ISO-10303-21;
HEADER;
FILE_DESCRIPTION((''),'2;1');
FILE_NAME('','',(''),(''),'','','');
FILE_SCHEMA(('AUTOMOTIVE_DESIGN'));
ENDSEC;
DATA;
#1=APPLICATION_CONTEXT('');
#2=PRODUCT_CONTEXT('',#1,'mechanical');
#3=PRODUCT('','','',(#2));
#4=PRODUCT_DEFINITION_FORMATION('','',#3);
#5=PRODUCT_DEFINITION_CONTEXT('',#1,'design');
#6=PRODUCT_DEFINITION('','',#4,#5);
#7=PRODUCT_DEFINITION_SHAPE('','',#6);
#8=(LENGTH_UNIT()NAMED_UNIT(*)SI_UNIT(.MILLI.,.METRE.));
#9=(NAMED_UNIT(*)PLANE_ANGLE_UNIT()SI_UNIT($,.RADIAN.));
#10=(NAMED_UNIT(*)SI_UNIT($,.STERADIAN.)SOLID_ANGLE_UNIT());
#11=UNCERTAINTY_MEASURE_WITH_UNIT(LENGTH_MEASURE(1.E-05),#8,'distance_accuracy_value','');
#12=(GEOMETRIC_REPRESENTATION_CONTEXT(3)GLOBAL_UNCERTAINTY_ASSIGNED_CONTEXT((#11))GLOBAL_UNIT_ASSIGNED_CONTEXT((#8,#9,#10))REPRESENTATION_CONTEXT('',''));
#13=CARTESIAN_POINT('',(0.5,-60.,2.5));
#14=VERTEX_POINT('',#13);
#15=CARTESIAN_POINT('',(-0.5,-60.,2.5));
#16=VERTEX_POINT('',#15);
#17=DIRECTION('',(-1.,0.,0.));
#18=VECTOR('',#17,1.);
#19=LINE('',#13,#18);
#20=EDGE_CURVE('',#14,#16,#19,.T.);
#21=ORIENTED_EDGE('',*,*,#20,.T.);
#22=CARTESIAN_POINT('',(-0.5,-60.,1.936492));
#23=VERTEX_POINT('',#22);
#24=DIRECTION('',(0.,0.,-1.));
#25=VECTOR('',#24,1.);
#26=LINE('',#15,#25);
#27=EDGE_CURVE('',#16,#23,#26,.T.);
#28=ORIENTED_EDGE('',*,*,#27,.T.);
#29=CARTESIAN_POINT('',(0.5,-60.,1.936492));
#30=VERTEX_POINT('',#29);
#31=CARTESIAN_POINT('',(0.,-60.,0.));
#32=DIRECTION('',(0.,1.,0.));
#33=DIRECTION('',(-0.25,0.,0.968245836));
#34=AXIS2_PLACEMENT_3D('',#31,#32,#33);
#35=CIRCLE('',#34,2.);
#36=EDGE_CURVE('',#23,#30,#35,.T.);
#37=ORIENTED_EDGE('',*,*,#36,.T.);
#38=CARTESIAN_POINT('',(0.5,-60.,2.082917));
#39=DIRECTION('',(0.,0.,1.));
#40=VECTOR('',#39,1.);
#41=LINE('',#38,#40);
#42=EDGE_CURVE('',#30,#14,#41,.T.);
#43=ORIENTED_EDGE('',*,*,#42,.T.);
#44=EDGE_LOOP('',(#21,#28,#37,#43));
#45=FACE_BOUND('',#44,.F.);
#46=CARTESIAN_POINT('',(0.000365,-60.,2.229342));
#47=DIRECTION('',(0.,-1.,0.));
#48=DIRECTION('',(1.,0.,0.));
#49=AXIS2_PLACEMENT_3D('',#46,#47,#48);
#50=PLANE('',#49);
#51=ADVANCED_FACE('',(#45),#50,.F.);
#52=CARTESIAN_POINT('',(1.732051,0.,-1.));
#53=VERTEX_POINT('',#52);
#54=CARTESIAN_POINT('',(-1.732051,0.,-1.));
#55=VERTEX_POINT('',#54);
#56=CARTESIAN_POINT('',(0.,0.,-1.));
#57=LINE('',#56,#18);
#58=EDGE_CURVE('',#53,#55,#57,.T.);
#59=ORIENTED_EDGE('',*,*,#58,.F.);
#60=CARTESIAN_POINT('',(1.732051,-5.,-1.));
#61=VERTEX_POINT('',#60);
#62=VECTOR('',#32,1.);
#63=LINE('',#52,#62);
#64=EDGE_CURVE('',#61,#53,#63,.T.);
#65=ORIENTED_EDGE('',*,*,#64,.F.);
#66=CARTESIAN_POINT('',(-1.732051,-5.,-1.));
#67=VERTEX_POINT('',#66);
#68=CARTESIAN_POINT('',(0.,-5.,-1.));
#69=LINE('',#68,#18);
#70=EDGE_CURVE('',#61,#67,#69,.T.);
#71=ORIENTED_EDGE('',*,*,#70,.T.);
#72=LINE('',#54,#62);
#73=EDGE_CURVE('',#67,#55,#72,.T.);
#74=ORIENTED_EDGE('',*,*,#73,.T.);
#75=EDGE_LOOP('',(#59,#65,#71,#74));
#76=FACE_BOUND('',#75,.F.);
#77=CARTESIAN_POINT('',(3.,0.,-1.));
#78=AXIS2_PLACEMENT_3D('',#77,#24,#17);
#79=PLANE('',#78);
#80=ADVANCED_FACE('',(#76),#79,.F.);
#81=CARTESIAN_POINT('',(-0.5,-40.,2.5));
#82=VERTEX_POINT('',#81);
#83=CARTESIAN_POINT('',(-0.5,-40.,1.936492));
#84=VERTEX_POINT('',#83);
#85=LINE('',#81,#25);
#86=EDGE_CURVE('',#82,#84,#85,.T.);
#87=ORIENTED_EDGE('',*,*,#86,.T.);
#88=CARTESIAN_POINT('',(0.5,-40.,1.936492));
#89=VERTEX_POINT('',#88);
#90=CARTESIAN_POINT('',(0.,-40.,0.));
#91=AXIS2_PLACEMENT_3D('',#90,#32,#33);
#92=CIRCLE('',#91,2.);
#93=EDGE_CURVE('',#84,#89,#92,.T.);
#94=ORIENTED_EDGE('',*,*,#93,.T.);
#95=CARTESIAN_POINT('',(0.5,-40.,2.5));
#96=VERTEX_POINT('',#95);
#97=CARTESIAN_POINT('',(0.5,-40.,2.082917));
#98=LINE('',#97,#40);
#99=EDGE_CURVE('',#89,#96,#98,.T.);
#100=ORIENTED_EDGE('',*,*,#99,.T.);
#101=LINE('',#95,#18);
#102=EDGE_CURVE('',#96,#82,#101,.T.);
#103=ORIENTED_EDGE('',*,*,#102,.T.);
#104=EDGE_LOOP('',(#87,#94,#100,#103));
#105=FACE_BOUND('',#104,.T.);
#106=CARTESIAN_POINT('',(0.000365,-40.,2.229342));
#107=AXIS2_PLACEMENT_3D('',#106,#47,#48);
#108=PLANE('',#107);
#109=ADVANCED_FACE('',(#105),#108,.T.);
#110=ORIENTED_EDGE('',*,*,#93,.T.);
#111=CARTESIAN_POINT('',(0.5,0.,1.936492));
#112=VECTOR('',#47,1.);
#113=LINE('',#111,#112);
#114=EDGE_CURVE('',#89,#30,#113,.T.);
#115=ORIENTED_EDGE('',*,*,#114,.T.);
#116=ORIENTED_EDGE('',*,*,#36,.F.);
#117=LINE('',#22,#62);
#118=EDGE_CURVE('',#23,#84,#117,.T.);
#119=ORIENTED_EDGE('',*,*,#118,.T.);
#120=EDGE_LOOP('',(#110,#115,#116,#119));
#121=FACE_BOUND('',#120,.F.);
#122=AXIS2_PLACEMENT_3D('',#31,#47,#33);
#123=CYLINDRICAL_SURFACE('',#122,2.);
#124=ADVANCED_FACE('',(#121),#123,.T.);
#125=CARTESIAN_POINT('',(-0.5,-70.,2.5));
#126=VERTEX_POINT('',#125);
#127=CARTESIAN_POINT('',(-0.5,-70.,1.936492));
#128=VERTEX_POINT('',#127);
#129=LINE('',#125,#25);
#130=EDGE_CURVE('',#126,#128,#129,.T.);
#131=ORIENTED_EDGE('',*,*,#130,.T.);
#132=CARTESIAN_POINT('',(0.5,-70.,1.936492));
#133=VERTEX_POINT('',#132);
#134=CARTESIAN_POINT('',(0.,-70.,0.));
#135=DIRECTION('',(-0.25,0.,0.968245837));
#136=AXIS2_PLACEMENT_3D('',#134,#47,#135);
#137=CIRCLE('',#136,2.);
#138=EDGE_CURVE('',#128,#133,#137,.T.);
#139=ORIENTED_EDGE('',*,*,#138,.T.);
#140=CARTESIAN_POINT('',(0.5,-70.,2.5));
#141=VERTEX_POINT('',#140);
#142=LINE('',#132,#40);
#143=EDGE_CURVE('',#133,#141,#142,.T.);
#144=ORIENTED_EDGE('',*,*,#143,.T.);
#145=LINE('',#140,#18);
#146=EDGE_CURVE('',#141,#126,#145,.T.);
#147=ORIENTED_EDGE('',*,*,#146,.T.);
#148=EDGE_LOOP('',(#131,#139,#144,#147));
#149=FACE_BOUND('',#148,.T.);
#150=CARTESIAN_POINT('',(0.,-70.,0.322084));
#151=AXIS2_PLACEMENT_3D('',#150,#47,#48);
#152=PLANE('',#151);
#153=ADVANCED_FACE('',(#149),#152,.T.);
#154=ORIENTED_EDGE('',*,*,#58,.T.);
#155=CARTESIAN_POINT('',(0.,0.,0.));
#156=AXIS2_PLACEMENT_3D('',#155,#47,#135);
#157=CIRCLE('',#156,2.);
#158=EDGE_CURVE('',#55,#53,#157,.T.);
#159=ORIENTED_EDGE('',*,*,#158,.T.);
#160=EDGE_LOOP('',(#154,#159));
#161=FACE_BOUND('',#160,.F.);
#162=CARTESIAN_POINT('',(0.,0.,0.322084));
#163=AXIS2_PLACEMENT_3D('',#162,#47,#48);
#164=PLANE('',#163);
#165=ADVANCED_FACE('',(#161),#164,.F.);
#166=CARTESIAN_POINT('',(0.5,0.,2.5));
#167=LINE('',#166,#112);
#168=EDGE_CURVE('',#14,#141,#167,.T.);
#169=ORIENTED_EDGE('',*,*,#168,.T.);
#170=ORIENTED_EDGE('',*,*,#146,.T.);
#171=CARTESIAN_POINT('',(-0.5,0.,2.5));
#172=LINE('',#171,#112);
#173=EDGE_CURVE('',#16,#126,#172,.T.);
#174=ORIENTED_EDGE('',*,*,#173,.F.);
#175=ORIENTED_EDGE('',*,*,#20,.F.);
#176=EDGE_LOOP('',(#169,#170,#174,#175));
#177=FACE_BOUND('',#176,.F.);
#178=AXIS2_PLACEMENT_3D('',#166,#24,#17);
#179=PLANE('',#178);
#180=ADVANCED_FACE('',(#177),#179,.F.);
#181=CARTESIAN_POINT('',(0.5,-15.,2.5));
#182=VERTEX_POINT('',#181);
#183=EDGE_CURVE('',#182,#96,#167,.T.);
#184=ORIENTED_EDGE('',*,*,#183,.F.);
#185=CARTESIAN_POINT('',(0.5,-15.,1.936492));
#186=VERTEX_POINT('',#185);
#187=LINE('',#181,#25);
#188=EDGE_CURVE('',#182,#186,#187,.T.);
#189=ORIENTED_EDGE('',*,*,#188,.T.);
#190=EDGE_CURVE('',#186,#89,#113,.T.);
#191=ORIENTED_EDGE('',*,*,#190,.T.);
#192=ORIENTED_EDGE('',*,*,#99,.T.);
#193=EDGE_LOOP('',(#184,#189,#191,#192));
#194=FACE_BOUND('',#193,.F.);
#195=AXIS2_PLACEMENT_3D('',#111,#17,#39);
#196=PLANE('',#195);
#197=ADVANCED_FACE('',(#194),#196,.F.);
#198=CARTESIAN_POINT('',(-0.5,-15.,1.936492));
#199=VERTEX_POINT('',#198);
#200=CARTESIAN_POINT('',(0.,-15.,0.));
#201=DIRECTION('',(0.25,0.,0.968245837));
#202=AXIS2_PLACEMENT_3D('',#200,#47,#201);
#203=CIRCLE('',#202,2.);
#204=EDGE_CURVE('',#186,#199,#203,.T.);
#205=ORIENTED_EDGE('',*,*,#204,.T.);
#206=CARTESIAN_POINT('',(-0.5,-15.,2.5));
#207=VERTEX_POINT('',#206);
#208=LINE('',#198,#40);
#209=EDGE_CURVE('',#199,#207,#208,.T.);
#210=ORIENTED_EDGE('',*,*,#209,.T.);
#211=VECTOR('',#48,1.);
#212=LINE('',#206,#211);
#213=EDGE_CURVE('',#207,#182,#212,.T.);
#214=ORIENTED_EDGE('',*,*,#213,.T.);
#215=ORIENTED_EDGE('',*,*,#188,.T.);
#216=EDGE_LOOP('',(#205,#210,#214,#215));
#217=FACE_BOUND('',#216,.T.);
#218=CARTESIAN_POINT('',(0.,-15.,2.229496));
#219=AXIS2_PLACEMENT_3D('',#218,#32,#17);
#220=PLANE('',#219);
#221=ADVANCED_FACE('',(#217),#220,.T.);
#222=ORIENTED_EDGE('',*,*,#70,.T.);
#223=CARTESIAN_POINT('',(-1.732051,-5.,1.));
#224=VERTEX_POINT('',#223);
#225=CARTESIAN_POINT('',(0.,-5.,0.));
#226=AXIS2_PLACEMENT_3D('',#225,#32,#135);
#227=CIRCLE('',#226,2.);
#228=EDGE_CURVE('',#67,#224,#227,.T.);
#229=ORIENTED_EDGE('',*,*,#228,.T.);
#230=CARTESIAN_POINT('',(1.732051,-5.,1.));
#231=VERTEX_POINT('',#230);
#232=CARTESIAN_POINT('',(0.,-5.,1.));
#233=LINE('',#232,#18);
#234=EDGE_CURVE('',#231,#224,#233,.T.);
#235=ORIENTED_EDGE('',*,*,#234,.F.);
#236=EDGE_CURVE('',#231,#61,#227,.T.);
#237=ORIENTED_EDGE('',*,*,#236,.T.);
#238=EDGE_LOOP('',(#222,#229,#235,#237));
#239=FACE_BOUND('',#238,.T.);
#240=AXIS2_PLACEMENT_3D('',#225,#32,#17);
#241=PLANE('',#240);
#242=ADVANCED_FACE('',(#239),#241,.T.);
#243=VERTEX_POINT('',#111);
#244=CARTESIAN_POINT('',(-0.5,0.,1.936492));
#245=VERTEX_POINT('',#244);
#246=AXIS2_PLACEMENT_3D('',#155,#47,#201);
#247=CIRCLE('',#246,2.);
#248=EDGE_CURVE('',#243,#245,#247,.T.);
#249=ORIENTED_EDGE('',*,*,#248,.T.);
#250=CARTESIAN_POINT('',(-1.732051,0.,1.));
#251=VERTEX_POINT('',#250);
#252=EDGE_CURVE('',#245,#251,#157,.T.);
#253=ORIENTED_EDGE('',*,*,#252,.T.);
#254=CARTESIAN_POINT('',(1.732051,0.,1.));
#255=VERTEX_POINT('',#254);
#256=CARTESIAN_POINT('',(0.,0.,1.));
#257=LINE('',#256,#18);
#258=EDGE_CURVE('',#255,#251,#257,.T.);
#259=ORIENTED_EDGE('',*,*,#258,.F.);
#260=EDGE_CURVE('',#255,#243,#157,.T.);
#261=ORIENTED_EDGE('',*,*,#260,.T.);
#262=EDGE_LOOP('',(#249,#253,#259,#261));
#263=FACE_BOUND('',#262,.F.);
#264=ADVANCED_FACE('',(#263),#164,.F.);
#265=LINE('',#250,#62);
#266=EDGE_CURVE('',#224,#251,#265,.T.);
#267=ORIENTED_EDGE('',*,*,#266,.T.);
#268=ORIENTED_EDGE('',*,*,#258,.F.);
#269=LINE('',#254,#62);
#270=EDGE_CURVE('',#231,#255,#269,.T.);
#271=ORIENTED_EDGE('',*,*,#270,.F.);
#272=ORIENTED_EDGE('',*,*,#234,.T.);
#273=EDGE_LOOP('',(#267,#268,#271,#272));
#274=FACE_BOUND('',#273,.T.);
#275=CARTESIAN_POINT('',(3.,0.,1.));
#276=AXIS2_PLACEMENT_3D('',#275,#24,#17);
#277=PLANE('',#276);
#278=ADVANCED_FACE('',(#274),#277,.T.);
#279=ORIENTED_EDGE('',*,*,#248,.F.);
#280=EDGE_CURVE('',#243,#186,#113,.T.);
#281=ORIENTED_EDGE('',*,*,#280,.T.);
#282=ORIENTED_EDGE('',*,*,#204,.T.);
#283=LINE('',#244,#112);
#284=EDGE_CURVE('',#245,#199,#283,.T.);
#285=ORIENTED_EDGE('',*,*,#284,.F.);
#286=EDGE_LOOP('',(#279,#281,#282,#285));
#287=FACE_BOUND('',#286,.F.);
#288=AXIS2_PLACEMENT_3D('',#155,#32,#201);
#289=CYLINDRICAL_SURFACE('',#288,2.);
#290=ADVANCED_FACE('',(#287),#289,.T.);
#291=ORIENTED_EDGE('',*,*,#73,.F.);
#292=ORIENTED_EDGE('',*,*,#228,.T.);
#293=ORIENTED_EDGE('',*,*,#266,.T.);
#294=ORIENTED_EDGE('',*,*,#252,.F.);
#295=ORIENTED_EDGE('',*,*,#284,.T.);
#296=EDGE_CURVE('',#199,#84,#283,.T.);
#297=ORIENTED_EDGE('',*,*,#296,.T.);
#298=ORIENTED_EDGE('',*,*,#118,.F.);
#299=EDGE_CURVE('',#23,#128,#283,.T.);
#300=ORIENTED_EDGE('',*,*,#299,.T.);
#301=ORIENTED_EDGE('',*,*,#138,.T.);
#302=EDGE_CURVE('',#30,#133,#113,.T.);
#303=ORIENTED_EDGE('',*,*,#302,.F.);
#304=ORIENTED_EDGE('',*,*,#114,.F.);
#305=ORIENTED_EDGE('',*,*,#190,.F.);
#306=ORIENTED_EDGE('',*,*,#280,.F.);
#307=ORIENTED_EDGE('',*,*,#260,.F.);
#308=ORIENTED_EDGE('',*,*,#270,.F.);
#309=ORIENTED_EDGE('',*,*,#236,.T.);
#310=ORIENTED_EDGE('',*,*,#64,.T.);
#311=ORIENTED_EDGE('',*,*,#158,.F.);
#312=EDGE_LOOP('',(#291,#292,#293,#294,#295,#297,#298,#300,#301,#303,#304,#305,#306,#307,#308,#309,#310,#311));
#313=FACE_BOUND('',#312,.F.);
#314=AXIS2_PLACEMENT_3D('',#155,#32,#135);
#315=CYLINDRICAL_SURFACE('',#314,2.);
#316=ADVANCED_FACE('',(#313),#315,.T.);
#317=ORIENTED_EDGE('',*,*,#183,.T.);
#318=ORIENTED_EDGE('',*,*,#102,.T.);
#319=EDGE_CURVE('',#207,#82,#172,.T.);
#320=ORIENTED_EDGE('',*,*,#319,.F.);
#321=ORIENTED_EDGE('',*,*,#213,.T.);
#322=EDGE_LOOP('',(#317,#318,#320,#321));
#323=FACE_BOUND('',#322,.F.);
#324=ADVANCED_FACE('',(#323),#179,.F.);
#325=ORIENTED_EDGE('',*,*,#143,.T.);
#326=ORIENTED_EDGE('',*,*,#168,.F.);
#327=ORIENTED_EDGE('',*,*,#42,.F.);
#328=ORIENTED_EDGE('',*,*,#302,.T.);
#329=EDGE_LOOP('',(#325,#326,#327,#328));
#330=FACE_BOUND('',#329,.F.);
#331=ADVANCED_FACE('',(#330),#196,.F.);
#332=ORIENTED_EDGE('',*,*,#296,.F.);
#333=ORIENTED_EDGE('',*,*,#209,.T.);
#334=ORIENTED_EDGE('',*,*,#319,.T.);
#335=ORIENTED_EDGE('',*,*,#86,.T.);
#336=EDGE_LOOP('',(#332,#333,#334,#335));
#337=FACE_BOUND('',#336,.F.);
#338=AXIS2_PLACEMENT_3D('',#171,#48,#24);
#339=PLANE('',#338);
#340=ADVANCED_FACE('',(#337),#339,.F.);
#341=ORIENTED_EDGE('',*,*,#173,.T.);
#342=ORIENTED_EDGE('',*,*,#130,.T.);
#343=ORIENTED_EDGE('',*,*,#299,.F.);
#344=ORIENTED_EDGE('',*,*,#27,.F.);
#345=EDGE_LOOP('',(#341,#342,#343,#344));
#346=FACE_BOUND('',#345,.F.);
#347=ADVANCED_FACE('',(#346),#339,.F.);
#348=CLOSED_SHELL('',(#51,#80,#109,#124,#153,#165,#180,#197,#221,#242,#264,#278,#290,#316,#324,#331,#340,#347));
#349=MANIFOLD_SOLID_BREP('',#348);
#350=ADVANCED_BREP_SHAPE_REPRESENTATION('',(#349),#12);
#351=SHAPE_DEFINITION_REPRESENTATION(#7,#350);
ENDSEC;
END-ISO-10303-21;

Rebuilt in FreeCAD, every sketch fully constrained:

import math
import FreeCAD as App
import Part
import Sketcher
from FreeCAD import Vector

doc = App.newDocument("Part")
params = doc.addObject("Spreadsheet::Sheet", "Params")
for row, (alias, value) in enumerate([
    ("sketch1_radius", "2 mm"),
    ("sketch1_width", "1 mm"),
    ("pad1_length", "70 mm"),
    ("sketch2_radius", "2 mm"),
    ("sketch2_width", "1 mm"),
    ("pocket1_length", "20 mm"),
    ("sketch3_radius", "2 mm"),
    ("sketch3_width", "1 mm"),
    ("pocket2_length", "15 mm"),
    ("sketch4_width", "6 mm"),
    ("sketch4_height", "2 mm"),
    ("pocket3_length", "5 mm"),
], start=1):
    params.set(f"A{row}", alias)
    params.set(f"B{row}", "=" + value)
    params.setAlias(f"B{row}", alias)

body = doc.addObject("PartDesign::Body", "Body")

# Sketch on XZ plane
sketch1 = body.newObject("Sketcher::SketchObject", "Sketch")
sketch1.AttachmentSupport = (doc.getObject("XZ_Plane"), [""])
sketch1.MapMode = "FlatFace"
sketch1.addGeometry([
    Part.LineSegment(Vector(-0.5, 2.5, 0), Vector(-0.5, 1.936492, 0)),
    Part.ArcOfCircle(Part.Circle(Vector(0, 0, 0), Vector(0, 0, 1), 2), math.radians(104.477512), math.radians(435.522488)),
    Part.LineSegment(Vector(0.5, 1.936492, 0), Vector(0.5, 2.5, 0)),
    Part.LineSegment(Vector(0.5, 2.5, 0), Vector(-0.5, 2.5, 0)),
], False)
sketch1.addConstraint([
    Sketcher.Constraint("Coincident", 0, 2, 1, 1),
    Sketcher.Constraint("Coincident", 1, 2, 2, 1),
    Sketcher.Constraint("Coincident", 2, 2, 3, 1),
    Sketcher.Constraint("Coincident", 3, 2, 0, 1),
    Sketcher.Constraint("Vertical", 0),
    Sketcher.Constraint("Vertical", 2),
    Sketcher.Constraint("Horizontal", 3),
    Sketcher.Constraint("Coincident", 1, 3, -1, 1),
    Sketcher.Constraint("Horizontal", 0, 2, 1, 2),
    Sketcher.Constraint("Radius", 1, 2.0),
    Sketcher.Constraint("DistanceX", 3, 2, 3, 1, 1.0),
    Sketcher.Constraint("DistanceY", -1, 1, 2, 2, 2.5),
])
sketch1.setExpression("Constraints[9]", "Params.sketch1_radius")
sketch1.setExpression("Constraints[10]", "Params.sketch1_width")
pad1 = body.newObject("PartDesign::Pad", "Pad")
pad1.Profile = sketch1
pad1.setExpression("Length", "Params.pad1_length")

# Sketch on XZ plane
sketch2 = body.newObject("Sketcher::SketchObject", "Sketch001")
sketch2.AttachmentSupport = (doc.getObject("XZ_Plane"), [""])
sketch2.MapMode = "FlatFace"
sketch2.AttachmentOffset = App.Placement(Vector(0, 0, 60), App.Rotation())
sketch2.addGeometry([
    Part.ArcOfCircle(Part.Circle(Vector(0, 0, 0), Vector(0, 0, 1), 2), math.radians(75.485935), math.radians(104.477512)),
    Part.LineSegment(Vector(0.501235, 1.936172, 0), Vector(0.5, 2.5, 0)),
    Part.LineSegment(Vector(0.5, 2.5, 0), Vector(-0.5, 2.5, 0)),
    Part.LineSegment(Vector(-0.5, 2.5, 0), Vector(-0.5, 1.936492, 0)),
], False)
sketch2.addConstraint([
    Sketcher.Constraint("Coincident", 0, 1, 1, 1),
    Sketcher.Constraint("Coincident", 1, 2, 2, 1),
    Sketcher.Constraint("Coincident", 2, 2, 3, 1),
    Sketcher.Constraint("Coincident", 3, 2, 0, 2),
    Sketcher.Constraint("Horizontal", 2),
    Sketcher.Constraint("Vertical", 3),
    Sketcher.Constraint("Coincident", 0, 3, -1, 1),
    Sketcher.Constraint("Radius", 0, 2.0),
    Sketcher.Constraint("DistanceX", 2, 2, 2, 1, 1.0),
    Sketcher.Constraint("DistanceX", -1, 1, 1, 2, 0.5),
    Sketcher.Constraint("DistanceY", -1, 1, 1, 2, 2.5),
    Sketcher.Constraint("Distance", 1, 0.563829),
])
sketch2.setExpression("Constraints[7]", "Params.sketch2_radius")
sketch2.setExpression("Constraints[8]", "Params.sketch2_width")
pocket1 = body.newObject("PartDesign::Pocket", "Pocket")
pocket1.Profile = sketch2
pocket1.setExpression("Length", "Params.pocket1_length")

# Sketch on XZ plane
sketch3 = body.newObject("Sketcher::SketchObject", "Sketch002")
sketch3.AttachmentSupport = (doc.getObject("XZ_Plane"), [""])
sketch3.MapMode = "FlatFace"
sketch3.addGeometry([
    Part.LineSegment(Vector(0.5, 2.5, 0), Vector(0.5, 1.936492, 0)),
    Part.ArcOfCircle(Part.Circle(Vector(0, 0, 0), Vector(0, 0, 1), 2), math.radians(75.522488), math.radians(104.477512)),
    Part.LineSegment(Vector(-0.5, 1.936492, 0), Vector(-0.5, 2.5, 0)),
    Part.LineSegment(Vector(-0.5, 2.5, 0), Vector(0.5, 2.5, 0)),
], False)
sketch3.addConstraint([
    Sketcher.Constraint("Coincident", 0, 2, 1, 1),
    Sketcher.Constraint("Coincident", 1, 2, 2, 1),
    Sketcher.Constraint("Coincident", 2, 2, 3, 1),
    Sketcher.Constraint("Coincident", 3, 2, 0, 1),
    Sketcher.Constraint("Vertical", 0),
    Sketcher.Constraint("Vertical", 2),
    Sketcher.Constraint("Horizontal", 3),
    Sketcher.Constraint("Coincident", 1, 3, -1, 1),
    Sketcher.Constraint("Horizontal", 0, 2, 1, 2),
    Sketcher.Constraint("Radius", 1, 2.0),
    Sketcher.Constraint("DistanceX", 3, 1, 3, 2, 1.0),
    Sketcher.Constraint("DistanceY", -1, 1, 2, 2, 2.5),
])
sketch3.setExpression("Constraints[9]", "Params.sketch3_radius")
sketch3.setExpression("Constraints[10]", "Params.sketch3_width")
pocket2 = body.newObject("PartDesign::Pocket", "Pocket001")
pocket2.Profile = sketch3
pocket2.setExpression("Length", "Params.pocket2_length")
pocket2.Reversed = True

# Sketch on XZ plane
sketch4 = body.newObject("Sketcher::SketchObject", "Sketch003")
sketch4.AttachmentSupport = (doc.getObject("XZ_Plane"), [""])
sketch4.MapMode = "FlatFace"
sketch4.addGeometry([
    Part.LineSegment(Vector(3, 1, 0), Vector(3, -1, 0)),
    Part.LineSegment(Vector(3, -1, 0), Vector(-3, -1, 0)),
    Part.LineSegment(Vector(-3, -1, 0), Vector(-3, 1, 0)),
    Part.LineSegment(Vector(-3, 1, 0), Vector(3, 1, 0)),
], False)
sketch4.addConstraint([
    Sketcher.Constraint("Coincident", 0, 2, 1, 1),
    Sketcher.Constraint("Coincident", 1, 2, 2, 1),
    Sketcher.Constraint("Coincident", 2, 2, 3, 1),
    Sketcher.Constraint("Coincident", 3, 2, 0, 1),
    Sketcher.Constraint("Vertical", 0),
    Sketcher.Constraint("Horizontal", 1),
    Sketcher.Constraint("Vertical", 2),
    Sketcher.Constraint("Horizontal", 3),
    Sketcher.Constraint("Symmetric", 0, 2, 2, 2, -1, 1),
    Sketcher.Constraint("DistanceX", 1, 2, 1, 1, 6.0),
    Sketcher.Constraint("DistanceY", 0, 2, 0, 1, 2.0),
])
sketch4.setExpression("Constraints[9]", "Params.sketch4_width")
sketch4.setExpression("Constraints[10]", "Params.sketch4_height")
pocket3 = body.newObject("PartDesign::Pocket", "Pocket002")
pocket3.Profile = sketch4
pocket3.setExpression("Length", "Params.pocket3_length")
pocket3.Reversed = True

doc.recompute()
